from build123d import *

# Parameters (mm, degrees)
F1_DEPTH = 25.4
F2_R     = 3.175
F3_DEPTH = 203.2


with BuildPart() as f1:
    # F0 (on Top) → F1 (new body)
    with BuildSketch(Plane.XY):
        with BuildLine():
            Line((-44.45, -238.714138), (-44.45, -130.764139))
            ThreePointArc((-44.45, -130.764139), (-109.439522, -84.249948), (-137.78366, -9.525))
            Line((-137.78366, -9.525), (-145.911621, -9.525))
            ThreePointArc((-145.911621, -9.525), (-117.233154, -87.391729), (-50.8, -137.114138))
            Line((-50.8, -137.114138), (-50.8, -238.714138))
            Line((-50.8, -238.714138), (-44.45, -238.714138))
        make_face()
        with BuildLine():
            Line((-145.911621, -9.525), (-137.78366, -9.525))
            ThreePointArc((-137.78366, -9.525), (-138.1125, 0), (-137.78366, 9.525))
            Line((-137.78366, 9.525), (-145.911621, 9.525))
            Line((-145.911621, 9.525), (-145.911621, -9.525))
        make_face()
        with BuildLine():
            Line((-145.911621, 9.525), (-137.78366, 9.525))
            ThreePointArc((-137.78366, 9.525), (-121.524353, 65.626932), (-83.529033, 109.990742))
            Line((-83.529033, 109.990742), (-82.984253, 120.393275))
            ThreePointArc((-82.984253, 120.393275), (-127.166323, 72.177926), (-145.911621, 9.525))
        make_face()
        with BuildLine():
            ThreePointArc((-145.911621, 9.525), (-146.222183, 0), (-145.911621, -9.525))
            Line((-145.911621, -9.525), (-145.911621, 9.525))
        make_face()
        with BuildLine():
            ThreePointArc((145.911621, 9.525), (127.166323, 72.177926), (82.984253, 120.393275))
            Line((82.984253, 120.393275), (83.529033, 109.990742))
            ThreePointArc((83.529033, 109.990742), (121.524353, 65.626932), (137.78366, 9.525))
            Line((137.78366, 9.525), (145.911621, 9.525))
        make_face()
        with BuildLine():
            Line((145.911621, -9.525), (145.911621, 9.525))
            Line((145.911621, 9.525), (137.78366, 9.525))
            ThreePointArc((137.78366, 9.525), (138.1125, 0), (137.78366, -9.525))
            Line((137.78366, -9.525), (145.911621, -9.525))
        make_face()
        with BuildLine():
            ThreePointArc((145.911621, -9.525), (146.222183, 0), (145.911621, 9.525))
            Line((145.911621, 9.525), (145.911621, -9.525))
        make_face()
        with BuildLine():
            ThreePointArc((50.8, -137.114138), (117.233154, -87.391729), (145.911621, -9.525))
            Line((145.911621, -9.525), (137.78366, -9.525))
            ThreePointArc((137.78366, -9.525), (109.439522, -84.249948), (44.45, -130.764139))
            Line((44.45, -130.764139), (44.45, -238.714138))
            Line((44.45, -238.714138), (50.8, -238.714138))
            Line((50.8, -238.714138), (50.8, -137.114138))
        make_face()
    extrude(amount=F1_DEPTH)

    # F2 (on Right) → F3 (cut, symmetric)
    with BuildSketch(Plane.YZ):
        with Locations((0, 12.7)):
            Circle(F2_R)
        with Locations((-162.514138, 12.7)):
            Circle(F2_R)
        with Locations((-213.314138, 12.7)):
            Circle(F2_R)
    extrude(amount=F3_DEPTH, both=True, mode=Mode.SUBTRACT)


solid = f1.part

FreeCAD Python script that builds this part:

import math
import FreeCAD as App
import Part
import Sketcher

V = App.Vector
Q = App.Units.Quantity

doc = App.newDocument("Part")
params = doc.addObject("Spreadsheet::Sheet", "Params")
for row, (alias, value) in enumerate([
    ("sketch1_height", "4 in"),
    ("sketch1_height2", "4 in"),
    ("sketch1_radius", "5.4374999 in"),
    ("sketch1_radius2", "5.4375001 in"),
    ("sketch1_width", "0.25 in"),
    ("pad1_length", "1 in"),
    ("sketch2_diameter", "0.25 in"),
    ("pocket1_length", "16 in"),
], start=1):
    params.set(f"A{row}", alias)
    params.set(f"B{row}", "=" + value)
    params.setAlias(f"B{row}", alias)

body = doc.addObject("PartDesign::Body", "Body")
body.AllowCompound = True

sketch1 = doc.addObject("Sketcher::SketchObject", "Sketch")
body.addObject(sketch1)
sketch1.AttachmentSupport = (doc.XY_Plane, [""])
sketch1.MapMode = "FlatFace"
sketch1.addGeometry(Part.LineSegment(V(-44.45, -238.714138, 0), V(-44.45, -130.764139, 0)), False)
sketch1.addGeometry(Part.ArcOfCircle(Part.Circle(V(-0.000003, -0.000002, 0), V(0, 0, 1), 138.112497), math.radians(-176.045429), math.radians(-108.77418)), False)
sketch1.addGeometry(Part.ArcOfCircle(Part.Circle(V(-0.000104, 0, 0), V(0, 0, 1), 138.112396), math.radians(176.045425), math.radians(183.954575)), False)
sketch1.addGeometry(Part.ArcOfCircle(Part.Circle(V(0.000002, -0.000001, 0), V(0, 0, 1), 138.112502), math.radians(127.213719), math.radians(176.045428)), False)
sketch1.addGeometry(Part.LineSegment(V(-83.529033, 109.990742, 0), V(-82.984253, 120.393275, 0)), False)
sketch1.addGeometry(Part.ArcOfCircle(Part.Circle(V(0.000004, -0.000002, 0), V(0, 0, 1), 146.222187), math.radians(124.577583), math.radians(176.265074)), False)
sketch1.addGeometry(Part.ArcOfCircle(Part.Circle(V(-0.000054, 0, 0), V(0, 0, 1), 146.222129), math.radians(176.265073), math.radians(183.734927)), False)
sketch1.addGeometry(Part.ArcOfCircle(Part.Circle(V(0.000002, 0.000001, 0), V(0, 0, 1), 146.222185), math.radians(-176.265074), math.radians(-110.329379)), False)
sketch1.addGeometry(Part.LineSegment(V(-50.8, -137.114138, 0), V(-50.8, -238.714138, 0)), False)
sketch1.addGeometry(Part.LineSegment(V(-50.8, -238.714138, 0), V(-44.45, -238.714138, 0)), False)
sketch1.addGeometry(Part.ArcOfCircle(Part.Circle(V(-0.000004, -0.000002, 0), V(0, 0, 1), 146.222187), math.radians(3.734926), math.radians(55.422417)), False)
sketch1.addGeometry(Part.LineSegment(V(82.984253, 120.393275, 0), V(83.529033, 109.990742, 0)), False)
sketch1.addGeometry(Part.ArcOfCircle(Part.Circle(V(-0.000002, -0.000001, 0), V(0, 0, 1), 138.112502), math.radians(3.954572), math.radians(52.786281)), False)
sketch1.addGeometry(Part.ArcOfCircle(Part.Circle(V(0.000104, 0, 0), V(0, 0, 1), 138.112396), math.radians(-3.954575), math.radians(3.954575)), False)
sketch1.addGeometry(Part.ArcOfCircle(Part.Circle(V(0.000003, -0.000002, 0), V(0, 0, 1), 138.112497), math.radians(-71.22582), math.radians(-3.954571)), False)
sketch1.addGeometry(Part.LineSegment(V(44.45, -130.764139, 0), V(44.45, -238.714138, 0)), False)
sketch1.addGeometry(Part.LineSegment(V(44.45, -238.714138, 0), V(50.8, -238.714138, 0)), False)
sketch1.addGeometry(Part.LineSegment(V(50.8, -238.714138, 0), V(50.8, -137.114138, 0)), False)
sketch1.addGeometry(Part.ArcOfCircle(Part.Circle(V(-0.000002, 0.000001, 0), V(0, 0, 1), 146.222185), math.radians(-69.670621), math.radians(-3.734926)), False)
sketch1.addGeometry(Part.ArcOfCircle(Part.Circle(V(0.000054, 0, 0), V(0, 0, 1), 146.222129), math.radians(-3.734927), math.radians(3.734927)), False)
sketch1.addConstraint(Sketcher.Constraint("Coincident", 0, 2, 1, 2))
sketch1.addConstraint(Sketcher.Constraint("Coincident", 1, 1, 2, 2))
sketch1.addConstraint(Sketcher.Constraint("Coincident", 2, 1, 3, 2))
sketch1.addConstraint(Sketcher.Constraint("Coincident", 3, 1, 4, 1))
sketch1.addConstraint(Sketcher.Constraint("Coincident", 4, 2, 5, 1))
sketch1.addConstraint(Sketcher.Constraint("Coincident", 5, 2, 6, 1))
sketch1.addConstraint(Sketcher.Constraint("Coincident", 6, 2, 7, 1))
sketch1.addConstraint(Sketcher.Constraint("Coincident", 7, 2, 8, 1))
sketch1.addConstraint(Sketcher.Constraint("Coincident", 8, 2, 9, 1))
sketch1.addConstraint(Sketcher.Constraint("Coincident", 9, 2, 0, 1))
sketch1.addConstraint(Sketcher.Constraint("Coincident", 10, 2, 11, 1))
sketch1.addConstraint(Sketcher.Constraint("Coincident", 11, 2, 12, 2))
sketch1.addConstraint(Sketcher.Constraint("Coincident", 12, 1, 13, 2))
sketch1.addConstraint(Sketcher.Constraint("Coincident", 13, 1, 14, 2))
sketch1.addConstraint(Sketcher.Constraint("Coincident", 14, 1, 15, 1))
sketch1.addConstraint(Sketcher.Constraint("Coincident", 15, 2, 16, 1))
sketch1.addConstraint(Sketcher.Constraint("Coincident", 16, 2, 17, 1))
sketch1.addConstraint(Sketcher.Constraint("Coincident", 17, 2, 18, 1))
sketch1.addConstraint(Sketcher.Constraint("Coincident", 18, 2, 19, 1))
sketch1.addConstraint(Sketcher.Constraint("Coincident", 19, 2, 10, 1))
sketch1.addConstraint(Sketcher.Constraint("Vertical", 0))
sketch1.addConstraint(Sketcher.Constraint("Vertical", 8))
sketch1.addConstraint(Sketcher.Constraint("Horizontal", 9))
sketch1.addConstraint(Sketcher.Constraint("Vertical", 15))
sketch1.addConstraint(Sketcher.Constraint("Horizontal", 16))
sketch1.addConstraint(Sketcher.Constraint("Vertical", 17))
sketch1.addConstraint(Sketcher.Constraint("Coincident", 1, 3, -1, 1))
sketch1.addConstraint(Sketcher.Constraint("Coincident", 3, 3, -1, 1))
sketch1.addConstraint(Sketcher.Constraint("Coincident", 5, 3, -1, 1))
sketch1.addConstraint(Sketcher.Constraint("Coincident", 7, 3, -1, 1))
sketch1.addConstraint(Sketcher.Constraint("Coincident", 10, 3, -1, 1))
sketch1.addConstraint(Sketcher.Constraint("Coincident", 12, 3, -1, 1))
sketch1.addConstraint(Sketcher.Constraint("Coincident", 14, 3, -1, 1))
sketch1.addConstraint(Sketcher.Constraint("Coincident", 18, 3, -1, 1))
sketch1.addConstraint(Sketcher.Constraint("PointOnObject", 2, 3, -1))
sketch1.addConstraint(Sketcher.Constraint("PointOnObject", 6, 3, -1))
sketch1.addConstraint(Sketcher.Constraint("PointOnObject", 13, 3, -1))
sketch1.addConstraint(Sketcher.Constraint("PointOnObject", 19, 3, -1))
sketch1.addConstraint(Sketcher.Constraint("DistanceY", 8, 2, 8, 1, Q("4 in")))
sketch1.addConstraint(Sketcher.Constraint("DistanceY", 17, 1, 17, 2, Q("4 in")))
sketch1.addConstraint(Sketcher.Constraint("DistanceX", 7, 2, -1, 1, Q("2 in")))
sketch1.addConstraint(Sketcher.Constraint("DistanceX", -1, 1, 16, 2, Q("2 in")))
sketch1.addConstraint(Sketcher.Constraint("Radius", 1, Q("5.4374999 in")))
sketch1.addConstraint(Sketcher.Constraint("Radius", 12, Q("5.4375001 in")))
sketch1.addConstraint(Sketcher.Constraint("DistanceY", 15, 2, 7, 2, Q("4 in")))
sketch1.addConstraint(Sketcher.Constraint("DistanceX", 9, 1, 9, 2, Q("0.25 in")))
sketch1.addConstraint(Sketcher.Constraint("DistanceX", 16, 1, 16, 2, Q("0.25 in")))
sketch1.addConstraint(Sketcher.Constraint("DistanceY", 0, 1, 0, 2, Q("4.25 in")))
sketch1.addConstraint(Sketcher.Constraint("DistanceY", 1, 1, 2, 1, Q("0.75 in")))
sketch1.addConstraint(Sketcher.Constraint("DistanceY", 1, 1, 5, 2, Q("0.75 in")))
sketch1.addConstraint(Sketcher.Constraint("DistanceY", 6, 2, 5, 2, Q("0.75 in")))
sketch1.addConstraint(Sketcher.Constraint("DistanceY", 13, 1, 12, 1, Q("0.75 in")))
sketch1.addConstraint(Sketcher.Constraint("DistanceY", 18, 2, 12, 1, Q("0.75 in")))
sketch1.addConstraint(Sketcher.Constraint("DistanceY", 18, 2, 19, 2, Q("0.75 in")))
sketch1.addConstraint(Sketcher.Constraint("DistanceY", 1, 1, -1, 1, Q("0.375 in")))
sketch1.addConstraint(Sketcher.Constraint("DistanceY", -1, 1, 12, 1, Q("0.375 in")))
sketch1.addConstraint(Sketcher.Constraint("Radius", 6, 146.222129))
sketch1.addConstraint(Sketcher.Constraint("Radius", 19, 146.222129))
sketch1.addConstraint(Sketcher.Constraint("Radius", 2, 138.112396))
sketch1.addConstraint(Sketcher.Constraint("Radius", 13, 138.112396))
sketch1.addConstraint(Sketcher.Constraint("DistanceX", 4, 2, 6, 3, 82.984199))
sketch1.addConstraint(Sketcher.Constraint("DistanceX", 19, 3, 10, 2, 82.984199))
sketch1.addConstraint(Sketcher.Constraint("Distance", 4, 10.416788))
sketch1.addConstraint(Sketcher.Constraint("Distance", 11, 10.416788))
sketch1.setExpression("Constraints[38]", "Params.sketch1_height")
sketch1.setExpression("Constraints[39]", "Params.sketch1_height2")
sketch1.setExpression("Constraints[42]", "Params.sketch1_radius")
sketch1.setExpression("Constraints[43]", "Params.sketch1_radius2")
sketch1.setExpression("Constraints[45]", "Params.sketch1_width")
pad1 = doc.addObject("PartDesign::Pad", "Pad")
body.addObject(pad1)
pad1.Profile = sketch1
pad1.setExpression("Length", "Params.pad1_length")

sketch2 = doc.addObject("Sketcher::SketchObject", "Sketch001")
body.addObject(sketch2)
sketch2.AttachmentSupport = (doc.YZ_Plane, [""])
sketch2.MapMode = "FlatFace"
sketch2.addGeometry(Part.Circle(V(0, 12.7, 0), V(0, 0, 1), 3.2), False)
sketch2.addGeometry(Part.Circle(V(-162.5, 12.7, 0), V(0, 0, 1), 3.2), False)
sketch2.addGeometry(Part.Circle(V(-213.3, 12.7, 0), V(0, 0, 1), 3.2), False)
sketch2.addConstraint(Sketcher.Constraint("Equal", 0, 1))
sketch2.addConstraint(Sketcher.Constraint("Equal", 1, 2))
sketch2.addConstraint(Sketcher.Constraint("PointOnObject", 0, 3, -2))
sketch2.addConstraint(Sketcher.Constraint("Horizontal", 0, 3, 1, 3))
sketch2.addConstraint(Sketcher.Constraint("Horizontal", 1, 3, 2, 3))
sketch2.addConstraint(Sketcher.Constraint("Diameter", 0, Q("0.25 in")))
sketch2.addConstraint(Sketcher.Constraint("DistanceX", 2, 3, 1, 3, Q("2 in")))
sketch2.addConstraint(Sketcher.Constraint("DistanceY", -1, 1, 0, 3, Q("0.5 in")))
sketch2.addConstraint(Sketcher.Constraint("DistanceX", 1, 3, -1, 1, 162.514138))
sketch2.setExpression("Constraints[5]", "Params.sketch2_diameter")
pocket1 = doc.addObject("PartDesign::Pocket", "Pocket")
body.addObject(pocket1)
pocket1.Profile = sketch2
pocket1.setExpression("Length", "Params.pocket1_length")
pocket1.Midplane = True

doc.recompute()
